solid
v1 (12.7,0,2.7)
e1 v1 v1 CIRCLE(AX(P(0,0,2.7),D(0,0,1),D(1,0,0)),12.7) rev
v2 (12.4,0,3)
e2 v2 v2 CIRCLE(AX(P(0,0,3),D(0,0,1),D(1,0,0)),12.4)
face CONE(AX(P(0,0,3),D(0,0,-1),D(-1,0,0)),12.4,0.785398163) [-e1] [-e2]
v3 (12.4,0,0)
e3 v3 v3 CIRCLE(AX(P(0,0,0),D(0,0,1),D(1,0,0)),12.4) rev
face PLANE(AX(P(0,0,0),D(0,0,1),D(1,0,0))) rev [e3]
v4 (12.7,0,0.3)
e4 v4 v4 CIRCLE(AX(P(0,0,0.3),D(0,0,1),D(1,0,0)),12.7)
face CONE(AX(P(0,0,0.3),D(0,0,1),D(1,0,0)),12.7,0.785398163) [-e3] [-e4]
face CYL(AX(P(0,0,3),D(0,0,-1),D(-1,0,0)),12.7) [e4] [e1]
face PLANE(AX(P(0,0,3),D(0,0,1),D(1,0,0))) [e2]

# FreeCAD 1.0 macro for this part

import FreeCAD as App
import Part
import Sketcher

V = App.Vector


def edges_at(feature, points):
    """Names of the edges that pass closest to the given points."""
    edges = feature.Shape.Edges
    near = lambda p: min(range(len(edges)), key=lambda i: edges[i].distToShape(Part.Vertex(*p))[0])
    return sorted({f"Edge{near(p) + 1}" for p in points})

doc = App.newDocument("Part")
params = doc.addObject("Spreadsheet::Sheet", "Params")
for row, (alias, value) in enumerate([
    ("sketch1_diameter", "25.4 mm"),
    ("pad1_length", "3 mm"),
    ("chamfer_size", "0.3 mm"),
], start=1):
    params.set(f"A{row}", alias)
    params.set(f"B{row}", "=" + value)
    params.setAlias(f"B{row}", alias)

body = doc.addObject("PartDesign::Body", "Body")

# Sketch on XY plane
sketch1 = body.newObject("Sketcher::SketchObject", "Sketch")
sketch1.AttachmentSupport = (doc.getObject("XY_Plane"), [""])
sketch1.MapMode = "FlatFace"
sketch1.addGeometry(Part.Circle(V(0, 0, 0), V(0, 0, 1), 13), False)
sketch1.addConstraint([
    Sketcher.Constraint("Coincident", 0, 3, -1, 1),
    Sketcher.Constraint("Diameter", 0, 25.4),
])
sketch1.setExpression("Constraints[1]", "Params.sketch1_diameter")
pad1 = body.newObject("PartDesign::Pad", "Pad")
pad1.Profile = sketch1
pad1.setExpression("Length", "Params.pad1_length")
doc.recompute()

chamfer = body.newObject("PartDesign::Chamfer", "Chamfer")
chamfer.Base = (pad1, edges_at(pad1, [(-12.7, 0, 0), (-12.7, 0, 3)]))
chamfer.setExpression("Size", "Params.chamfer_size")

doc.recompute()
